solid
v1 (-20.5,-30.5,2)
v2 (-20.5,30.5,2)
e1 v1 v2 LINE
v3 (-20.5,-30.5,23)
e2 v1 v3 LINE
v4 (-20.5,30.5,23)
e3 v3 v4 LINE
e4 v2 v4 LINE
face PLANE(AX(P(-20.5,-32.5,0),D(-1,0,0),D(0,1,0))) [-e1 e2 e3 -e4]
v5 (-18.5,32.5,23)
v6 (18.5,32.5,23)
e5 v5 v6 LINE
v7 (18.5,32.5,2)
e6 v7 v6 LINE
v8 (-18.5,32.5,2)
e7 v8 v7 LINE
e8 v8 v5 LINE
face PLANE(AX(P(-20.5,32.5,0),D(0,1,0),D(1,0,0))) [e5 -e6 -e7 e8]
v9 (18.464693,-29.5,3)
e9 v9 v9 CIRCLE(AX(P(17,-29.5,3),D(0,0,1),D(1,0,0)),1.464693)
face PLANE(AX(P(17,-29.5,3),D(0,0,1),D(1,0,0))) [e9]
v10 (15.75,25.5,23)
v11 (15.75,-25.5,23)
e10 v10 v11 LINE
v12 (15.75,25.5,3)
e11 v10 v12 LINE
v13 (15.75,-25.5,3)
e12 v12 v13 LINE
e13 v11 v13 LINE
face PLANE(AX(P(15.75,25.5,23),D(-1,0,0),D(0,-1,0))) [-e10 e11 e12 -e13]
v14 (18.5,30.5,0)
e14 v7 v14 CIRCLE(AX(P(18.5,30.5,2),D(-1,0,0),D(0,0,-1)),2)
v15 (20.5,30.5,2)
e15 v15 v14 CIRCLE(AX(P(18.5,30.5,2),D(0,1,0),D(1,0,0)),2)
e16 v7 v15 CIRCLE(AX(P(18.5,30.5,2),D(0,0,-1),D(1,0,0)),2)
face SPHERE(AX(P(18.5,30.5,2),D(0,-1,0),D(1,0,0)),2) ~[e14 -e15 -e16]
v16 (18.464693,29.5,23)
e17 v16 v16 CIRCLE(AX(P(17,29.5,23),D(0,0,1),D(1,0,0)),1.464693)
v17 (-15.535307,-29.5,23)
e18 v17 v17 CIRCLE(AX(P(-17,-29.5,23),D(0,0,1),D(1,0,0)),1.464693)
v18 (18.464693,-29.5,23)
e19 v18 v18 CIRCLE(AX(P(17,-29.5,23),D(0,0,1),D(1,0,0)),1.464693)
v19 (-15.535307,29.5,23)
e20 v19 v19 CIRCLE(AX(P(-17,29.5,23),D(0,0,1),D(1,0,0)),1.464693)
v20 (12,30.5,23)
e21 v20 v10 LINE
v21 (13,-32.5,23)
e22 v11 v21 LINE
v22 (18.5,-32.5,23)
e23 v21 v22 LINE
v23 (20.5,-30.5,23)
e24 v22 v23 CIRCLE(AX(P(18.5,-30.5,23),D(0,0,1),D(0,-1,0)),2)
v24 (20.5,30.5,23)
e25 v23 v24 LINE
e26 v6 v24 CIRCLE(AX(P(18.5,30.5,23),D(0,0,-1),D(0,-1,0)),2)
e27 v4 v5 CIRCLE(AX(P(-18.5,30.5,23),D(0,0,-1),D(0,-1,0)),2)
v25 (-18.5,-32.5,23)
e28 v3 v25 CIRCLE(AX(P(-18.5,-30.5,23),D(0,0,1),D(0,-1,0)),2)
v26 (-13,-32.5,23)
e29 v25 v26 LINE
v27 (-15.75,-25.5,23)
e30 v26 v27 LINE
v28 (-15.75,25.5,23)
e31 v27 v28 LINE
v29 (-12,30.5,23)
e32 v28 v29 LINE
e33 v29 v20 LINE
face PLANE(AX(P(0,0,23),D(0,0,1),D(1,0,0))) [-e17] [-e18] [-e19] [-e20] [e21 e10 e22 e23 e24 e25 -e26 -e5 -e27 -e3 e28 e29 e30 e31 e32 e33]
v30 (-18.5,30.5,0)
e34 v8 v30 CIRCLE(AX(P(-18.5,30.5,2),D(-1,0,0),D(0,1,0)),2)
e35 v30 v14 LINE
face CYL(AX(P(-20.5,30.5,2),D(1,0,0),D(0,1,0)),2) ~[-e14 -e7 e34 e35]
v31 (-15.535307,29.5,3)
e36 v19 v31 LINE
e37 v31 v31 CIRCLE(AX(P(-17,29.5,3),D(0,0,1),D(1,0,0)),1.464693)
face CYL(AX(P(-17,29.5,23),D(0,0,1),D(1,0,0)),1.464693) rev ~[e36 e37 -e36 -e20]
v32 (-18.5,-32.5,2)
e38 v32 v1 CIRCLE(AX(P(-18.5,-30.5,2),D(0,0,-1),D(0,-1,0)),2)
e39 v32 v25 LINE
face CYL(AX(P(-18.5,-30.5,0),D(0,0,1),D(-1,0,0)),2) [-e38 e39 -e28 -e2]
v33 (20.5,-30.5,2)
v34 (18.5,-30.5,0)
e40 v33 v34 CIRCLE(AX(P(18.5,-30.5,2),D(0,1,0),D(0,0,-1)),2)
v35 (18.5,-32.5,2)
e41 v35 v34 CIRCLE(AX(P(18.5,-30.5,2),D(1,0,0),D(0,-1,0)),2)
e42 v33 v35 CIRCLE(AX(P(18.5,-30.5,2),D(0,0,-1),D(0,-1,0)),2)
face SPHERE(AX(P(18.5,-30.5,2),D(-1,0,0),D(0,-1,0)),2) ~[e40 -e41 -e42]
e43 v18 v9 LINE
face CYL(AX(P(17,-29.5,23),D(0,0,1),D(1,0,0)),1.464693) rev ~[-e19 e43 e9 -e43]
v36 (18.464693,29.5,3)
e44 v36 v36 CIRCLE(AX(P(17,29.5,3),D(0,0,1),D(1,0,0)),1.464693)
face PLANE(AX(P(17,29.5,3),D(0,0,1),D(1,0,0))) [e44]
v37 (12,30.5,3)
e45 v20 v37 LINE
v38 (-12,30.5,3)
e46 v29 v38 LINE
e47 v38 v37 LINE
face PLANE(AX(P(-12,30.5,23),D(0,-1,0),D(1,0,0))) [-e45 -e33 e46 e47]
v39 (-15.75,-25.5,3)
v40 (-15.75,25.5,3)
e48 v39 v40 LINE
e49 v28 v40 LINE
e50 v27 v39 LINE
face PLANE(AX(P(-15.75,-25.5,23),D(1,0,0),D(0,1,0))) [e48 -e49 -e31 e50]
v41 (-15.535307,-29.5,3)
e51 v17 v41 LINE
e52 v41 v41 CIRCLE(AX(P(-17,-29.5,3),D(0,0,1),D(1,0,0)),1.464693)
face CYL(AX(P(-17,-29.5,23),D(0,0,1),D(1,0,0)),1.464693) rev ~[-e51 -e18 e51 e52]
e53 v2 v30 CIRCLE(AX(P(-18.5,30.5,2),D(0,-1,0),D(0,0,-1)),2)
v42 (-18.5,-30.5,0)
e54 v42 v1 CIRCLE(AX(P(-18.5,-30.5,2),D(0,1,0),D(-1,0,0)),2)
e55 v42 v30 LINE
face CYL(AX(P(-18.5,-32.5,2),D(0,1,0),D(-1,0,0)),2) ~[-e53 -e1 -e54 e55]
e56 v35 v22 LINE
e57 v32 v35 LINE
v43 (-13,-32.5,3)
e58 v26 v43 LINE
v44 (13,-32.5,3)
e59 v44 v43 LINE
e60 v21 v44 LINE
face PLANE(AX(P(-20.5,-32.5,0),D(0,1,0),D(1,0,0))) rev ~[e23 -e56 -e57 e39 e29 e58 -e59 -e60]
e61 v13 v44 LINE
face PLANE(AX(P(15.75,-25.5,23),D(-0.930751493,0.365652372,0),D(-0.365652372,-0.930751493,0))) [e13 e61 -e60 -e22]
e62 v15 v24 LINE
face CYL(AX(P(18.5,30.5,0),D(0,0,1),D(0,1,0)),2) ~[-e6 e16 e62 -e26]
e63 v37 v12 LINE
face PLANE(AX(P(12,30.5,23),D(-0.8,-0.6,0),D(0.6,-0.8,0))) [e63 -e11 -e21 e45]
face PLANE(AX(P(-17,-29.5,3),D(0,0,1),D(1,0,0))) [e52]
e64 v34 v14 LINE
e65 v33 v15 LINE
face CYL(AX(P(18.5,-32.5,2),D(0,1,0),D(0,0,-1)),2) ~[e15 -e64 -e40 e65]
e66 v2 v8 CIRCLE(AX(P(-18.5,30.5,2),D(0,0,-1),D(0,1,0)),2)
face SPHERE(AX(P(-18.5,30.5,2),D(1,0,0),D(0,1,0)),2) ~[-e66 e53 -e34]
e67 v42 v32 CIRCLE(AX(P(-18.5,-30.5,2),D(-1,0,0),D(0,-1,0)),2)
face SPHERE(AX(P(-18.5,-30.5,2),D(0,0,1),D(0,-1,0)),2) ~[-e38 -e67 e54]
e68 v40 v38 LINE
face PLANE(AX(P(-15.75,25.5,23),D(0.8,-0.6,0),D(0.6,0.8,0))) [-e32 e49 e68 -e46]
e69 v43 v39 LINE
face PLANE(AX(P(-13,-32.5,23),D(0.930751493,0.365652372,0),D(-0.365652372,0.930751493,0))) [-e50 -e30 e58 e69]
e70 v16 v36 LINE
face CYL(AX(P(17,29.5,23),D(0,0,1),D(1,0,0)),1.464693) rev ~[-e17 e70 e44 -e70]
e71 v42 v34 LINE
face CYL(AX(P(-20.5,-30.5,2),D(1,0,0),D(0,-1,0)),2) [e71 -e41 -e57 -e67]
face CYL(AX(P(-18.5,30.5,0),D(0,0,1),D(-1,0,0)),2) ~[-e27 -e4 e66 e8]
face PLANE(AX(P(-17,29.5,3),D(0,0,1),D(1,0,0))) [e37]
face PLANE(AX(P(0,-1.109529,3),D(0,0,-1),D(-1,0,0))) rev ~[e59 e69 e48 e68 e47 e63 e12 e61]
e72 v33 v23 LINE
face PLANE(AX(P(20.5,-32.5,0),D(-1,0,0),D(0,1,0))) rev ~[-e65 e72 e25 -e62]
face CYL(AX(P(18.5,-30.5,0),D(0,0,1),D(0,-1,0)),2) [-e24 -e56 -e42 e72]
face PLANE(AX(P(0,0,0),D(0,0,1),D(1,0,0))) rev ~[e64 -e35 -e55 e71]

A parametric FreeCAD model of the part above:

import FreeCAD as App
import Part
import Sketcher

V = App.Vector
Q = App.Units.Quantity


def edges_at(feature, points):
    """Names of the edges that pass closest to the given points."""
    edges = feature.Shape.Edges
    near = lambda p: min(range(len(edges)), key=lambda i: edges[i].distToShape(Part.Vertex(*p))[0])
    return sorted({f"Edge{near(p) + 1}" for p in points})


def add_polygon(sketch, points):
    """Adds a closed chain of lines whose ends are joined by coincident constraints."""
    first, n = sketch.GeometryCount, len(points)
    for a, b in zip(points, points[1:] + points[:1]):
        sketch.addGeometry(Part.LineSegment(App.Vector(*a, 0), App.Vector(*b, 0)), False)
    for i in range(n):
        sketch.addConstraint(Sketcher.Constraint("Coincident", first + i, 2, first + (i + 1) % n, 1))

doc = App.newDocument("Part")
body = doc.addObject("PartDesign::Body", "Body")

# Sketch on XY plane
sketch1 = body.newObject("Sketcher::SketchObject", "Sketch")
sketch1.AttachmentSupport = (doc.getObject("XY_Plane"), [""])
sketch1.MapMode = "FlatFace"
add_polygon(sketch1, [(-20, 32), (-20, -32), (20, -32), (20, 32)])  # lines 0-3
sketch1.addConstraint(Sketcher.Constraint("Vertical", 0))
sketch1.addConstraint(Sketcher.Constraint("Horizontal", 1))
sketch1.addConstraint(Sketcher.Constraint("Vertical", 2))
sketch1.addConstraint(Sketcher.Constraint("Horizontal", 3))
sketch1.addConstraint(Sketcher.Constraint("Symmetric", 0, 2, 2, 2, -1, 1))
sketch1.addConstraint(Sketcher.Constraint("DistanceX", 1, 1, 1, 2, Q("41 mm")))
sketch1.addConstraint(Sketcher.Constraint("DistanceY", 0, 2, 0, 1, Q("65 mm")))
pad1 = body.newObject("PartDesign::Pad", "Pad")
pad1.Profile = sketch1
pad1.Length = 23

# Sketch on XY plane
sketch2 = body.newObject("Sketcher::SketchObject", "Sketch001")
sketch2.AttachmentSupport = (doc.getObject("XY_Plane"), [""])
sketch2.MapMode = "FlatFace"
sketch2.AttachmentOffset = App.Placement(V(0, 0, 23), App.Rotation())
sketch2.addGeometry(Part.Circle(V(17, 29.5, 0), V(0, 0, 1), 1.5), False)  # 0
sketch2.addGeometry(Part.Circle(V(-17, 29.5, 0), V(0, 0, 1), 1.5), False)  # 1
sketch2.addGeometry(Part.Circle(V(17, -29.5, 0), V(0, 0, 1), 1.5), False)  # 2
sketch2.addGeometry(Part.Circle(V(-17, -29.5, 0), V(0, 0, 1), 1.5), False)  # 3
add_polygon(sketch2, [(12, 30.5), (-12, 30.5), (-15.8, 25.5), (-15.8, -25.5), (-13, -32.5), (13, -32.5), (15.8, -25.5), (15.8, 25.5)])  # lines 4-11
sketch2.addConstraint(Sketcher.Constraint("Horizontal", 4))
sketch2.addConstraint(Sketcher.Constraint("Vertical", 6))
sketch2.addConstraint(Sketcher.Constraint("Horizontal", 8))
sketch2.addConstraint(Sketcher.Constraint("Vertical", 10))
sketch2.addConstraint(Sketcher.Constraint("Equal", 0, 1))
sketch2.addConstraint(Sketcher.Constraint("Equal", 1, 2))
sketch2.addConstraint(Sketcher.Constraint("Equal", 2, 3))
sketch2.addConstraint(Sketcher.Constraint("Symmetric", 1, 3, 2, 3, -1, 1))
sketch2.addConstraint(Sketcher.Constraint("Symmetric", 0, 3, 3, 3, -1, 1))
sketch2.addConstraint(Sketcher.Constraint("Symmetric", 5, 2, 9, 2, -1, 1))
sketch2.addConstraint(Sketcher.Constraint("Symmetric", 0, 3, 1, 3, -2))
sketch2.addConstraint(Sketcher.Constraint("Horizontal", 6, 2, 9, 2))
sketch2.addConstraint(Sketcher.Constraint("Horizontal", 5, 2, 10, 2))
sketch2.addConstraint(Sketcher.Constraint("Equal", 7, 9))
sketch2.addConstraint(Sketcher.Constraint("Equal", 5, 11))
sketch2.addConstraint(Sketcher.Constraint("DistanceX", 4, 2, 4, 1, Q("24 mm")))
sketch2.addConstraint(Sketcher.Constraint("DistanceX", 8, 1, 8, 2, Q("26 mm")))
sketch2.addConstraint(Sketcher.Constraint("DistanceY", 6, 2, 6, 1, Q("51 mm")))
sketch2.addConstraint(Sketcher.Constraint("DistanceX", -1, 1, 0, 3, Q("17 mm")))
sketch2.addConstraint(Sketcher.Constraint("DistanceY", 2, 3, 0, 3, Q("59 mm")))
sketch2.addConstraint(Sketcher.Constraint("DistanceY", 1, 3, 4, 2, Q("1 mm")))
sketch2.addConstraint(Sketcher.Constraint("DistanceY", 7, 2, 3, 3, Q("3 mm")))
sketch2.addConstraint(Sketcher.Constraint("DistanceX", 6, 2, 9, 2, Q("31.5 mm")))
sketch2.addConstraint(Sketcher.Constraint("Diameter", 0, Q("2.929386 mm")))
pocket1 = body.newObject("PartDesign::Pocket", "Pocket")
pocket1.Profile = sketch2
pocket1.Length = 20
doc.recompute()

fillet = body.newObject("PartDesign::Fillet", "Fillet")
fillet.Base = (pocket1, edges_at(pocket1, [
    (-20.5, -32.5, 11.5),
    (0, -32.5, 0),
    (20.5, -32.5, 11.5),
    (20.5, 0, 0),
    (20.5, 32.5, 11.5),
    (0, 32.5, 0),
    (-20.5, 32.5, 11.5),
    (-20.5, 0, 0),
]))
fillet.Radius = 2

doc.recompute()
